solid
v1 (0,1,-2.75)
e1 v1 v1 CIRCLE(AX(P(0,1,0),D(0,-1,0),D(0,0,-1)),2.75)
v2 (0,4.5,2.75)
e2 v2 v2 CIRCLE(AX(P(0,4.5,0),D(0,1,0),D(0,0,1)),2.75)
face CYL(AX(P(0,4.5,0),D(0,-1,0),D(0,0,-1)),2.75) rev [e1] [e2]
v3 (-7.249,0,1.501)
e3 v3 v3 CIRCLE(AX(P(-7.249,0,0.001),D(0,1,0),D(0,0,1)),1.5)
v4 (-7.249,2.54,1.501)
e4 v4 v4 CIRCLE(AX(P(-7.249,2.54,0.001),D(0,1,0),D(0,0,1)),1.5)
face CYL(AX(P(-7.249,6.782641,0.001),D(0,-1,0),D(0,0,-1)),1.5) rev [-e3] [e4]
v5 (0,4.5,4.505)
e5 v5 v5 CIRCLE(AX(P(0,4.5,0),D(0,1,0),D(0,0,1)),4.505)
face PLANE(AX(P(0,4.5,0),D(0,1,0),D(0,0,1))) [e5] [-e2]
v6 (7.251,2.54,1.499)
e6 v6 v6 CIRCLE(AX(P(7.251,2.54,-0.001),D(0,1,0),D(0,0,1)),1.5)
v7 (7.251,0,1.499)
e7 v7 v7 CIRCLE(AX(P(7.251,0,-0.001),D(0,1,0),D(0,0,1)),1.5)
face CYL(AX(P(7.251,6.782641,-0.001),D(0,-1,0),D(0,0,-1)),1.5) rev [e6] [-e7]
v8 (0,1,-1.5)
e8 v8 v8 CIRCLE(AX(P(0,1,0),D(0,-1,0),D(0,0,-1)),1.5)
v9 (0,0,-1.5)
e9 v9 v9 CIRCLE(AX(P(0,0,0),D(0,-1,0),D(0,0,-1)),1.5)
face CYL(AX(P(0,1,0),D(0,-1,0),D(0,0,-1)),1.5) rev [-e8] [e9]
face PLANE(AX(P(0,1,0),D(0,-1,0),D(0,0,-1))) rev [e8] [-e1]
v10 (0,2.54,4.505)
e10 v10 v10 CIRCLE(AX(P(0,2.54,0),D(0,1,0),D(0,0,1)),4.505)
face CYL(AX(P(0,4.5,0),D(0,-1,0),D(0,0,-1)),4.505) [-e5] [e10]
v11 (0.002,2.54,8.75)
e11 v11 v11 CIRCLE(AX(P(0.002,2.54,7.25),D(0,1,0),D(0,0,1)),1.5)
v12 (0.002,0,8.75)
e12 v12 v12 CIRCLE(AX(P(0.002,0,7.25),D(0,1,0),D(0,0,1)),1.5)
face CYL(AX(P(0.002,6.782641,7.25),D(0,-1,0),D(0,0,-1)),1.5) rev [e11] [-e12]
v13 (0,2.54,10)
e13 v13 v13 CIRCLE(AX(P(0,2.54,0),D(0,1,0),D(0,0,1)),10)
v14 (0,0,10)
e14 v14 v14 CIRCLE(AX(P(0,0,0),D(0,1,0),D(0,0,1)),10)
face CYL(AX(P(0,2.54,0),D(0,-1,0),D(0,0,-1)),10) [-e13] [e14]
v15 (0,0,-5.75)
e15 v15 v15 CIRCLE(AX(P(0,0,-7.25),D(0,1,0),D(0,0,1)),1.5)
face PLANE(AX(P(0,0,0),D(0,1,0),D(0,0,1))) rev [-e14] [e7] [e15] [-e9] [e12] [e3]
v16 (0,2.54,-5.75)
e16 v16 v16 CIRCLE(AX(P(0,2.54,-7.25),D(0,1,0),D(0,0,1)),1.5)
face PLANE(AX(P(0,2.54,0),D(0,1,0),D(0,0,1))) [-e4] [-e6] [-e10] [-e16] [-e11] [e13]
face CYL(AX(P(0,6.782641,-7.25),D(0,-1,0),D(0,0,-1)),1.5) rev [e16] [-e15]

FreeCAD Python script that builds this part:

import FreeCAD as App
import Part
import Sketcher

V = App.Vector

doc = App.newDocument("Part")
body = doc.addObject("PartDesign::Body", "Body")

# Sketch on XZ plane
sketch1 = body.newObject("Sketcher::SketchObject", "Sketch")
sketch1.AttachmentSupport = (doc.getObject("XZ_Plane"), [""])
sketch1.MapMode = "FlatFace"
sketch1.addGeometry(Part.Circle(V(0, 0, 0), V(0, 0, 1), 10), False)
sketch1.addGeometry(Part.Circle(V(0, 0, 0), V(0, 0, 1), 4.5), False)
sketch1.addConstraint(Sketcher.Constraint("Coincident", 0, 3, -1, 1))
sketch1.addConstraint(Sketcher.Constraint("Coincident", 1, 3, -1, 1))
sketch1.addConstraint(Sketcher.Constraint("Diameter", 0, 20.0))
sketch1.addConstraint(Sketcher.Constraint("Diameter", 1, 9.01))
pad1 = body.newObject("PartDesign::Pad", "Pad")
pad1.Profile = sketch1
pad1.Length = 2.54
pad1.Reversed = True

# Sketch on XZ plane
sketch2 = body.newObject("Sketcher::SketchObject", "Sketch001")
sketch2.AttachmentSupport = (doc.getObject("XZ_Plane"), [""])
sketch2.MapMode = "FlatFace"
sketch2.addGeometry(Part.Circle(V(0, 0, 0), V(0, 0, 1), 4.5), False)
sketch2.addGeometry(Part.Circle(V(0, 0, 0), V(0, 0, 1), 2.8), False)
sketch2.addConstraint(Sketcher.Constraint("Coincident", 0, 3, -1, 1))
sketch2.addConstraint(Sketcher.Constraint("Coincident", 1, 3, -1, 1))
sketch2.addConstraint(Sketcher.Constraint("Diameter", 1, 5.5))
sketch2.addConstraint(Sketcher.Constraint("Diameter", 0, 9.01))
pad2 = body.newObject("PartDesign::Pad", "Pad001")
pad2.Profile = sketch2
pad2.Length = 4.5
pad2.Reversed = True

# Sketch on XZ plane
sketch3 = body.newObject("Sketcher::SketchObject", "Sketch002")
sketch3.AttachmentSupport = (doc.getObject("XZ_Plane"), [""])
sketch3.MapMode = "FlatFace"
sketch3.addGeometry(Part.Circle(V(-7.2, 0, 0), V(0, 0, 1), 1.5), False)
sketch3.addGeometry(Part.Circle(V(0, -7.2, 0), V(0, 0, 1), 1.5), False)
sketch3.addGeometry(Part.Circle(V(7.3, 0, 0), V(0, 0, 1), 1.5), False)
sketch3.addGeometry(Part.Circle(V(0, 7.2, 0), V(0, 0, 1), 1.5), False)
sketch3.addConstraint(Sketcher.Constraint("Equal", 0, 1))
sketch3.addConstraint(Sketcher.Constraint("Equal", 1, 2))
sketch3.addConstraint(Sketcher.Constraint("Equal", 2, 3))
sketch3.addConstraint(Sketcher.Constraint("PointOnObject", 1, 3, -2))
sketch3.addConstraint(Sketcher.Constraint("Diameter", 0, 3.0))
sketch3.addConstraint(Sketcher.Constraint("DistanceX", 0, 3, 2, 3, 14.5))
sketch3.addConstraint(Sketcher.Constraint("DistanceY", 1, 3, 3, 3, 14.5))
sketch3.addConstraint(Sketcher.Constraint("DistanceY", 1, 3, -1, 1, 7.25))
sketch3.addConstraint(Sketcher.Constraint("DistanceX", 0, 3, -1, 1, 7.249))
sketch3.addConstraint(Sketcher.Constraint("DistanceY", -1, 1, 0, 3, 0.001))
sketch3.addConstraint(Sketcher.Constraint("DistanceY", 2, 3, -1, 1, 0.001))
sketch3.addConstraint(Sketcher.Constraint("DistanceX", -1, 1, 3, 3, 0.002))
pocket1 = body.newObject("PartDesign::Pocket", "Pocket")
pocket1.Profile = sketch3
pocket1.Length = 2.54

# Sketch on XZ plane
sketch4 = body.newObject("Sketcher::SketchObject", "Sketch003")
sketch4.AttachmentSupport = (doc.getObject("XZ_Plane"), [""])
sketch4.MapMode = "FlatFace"
sketch4.addGeometry(Part.Circle(V(0, 0, 0), V(0, 0, 1), 2.8), False)
sketch4.addGeometry(Part.Circle(V(0, 0, 0), V(0, 0, 1), 1.5), False)
sketch4.addConstraint(Sketcher.Constraint("Coincident", 0, 3, -1, 1))
sketch4.addConstraint(Sketcher.Constraint("Coincident", 1, 3, -1, 1))
sketch4.addConstraint(Sketcher.Constraint("Diameter", 1, 3.0))
sketch4.addConstraint(Sketcher.Constraint("Diameter", 0, 5.5))
pad3 = body.newObject("PartDesign::Pad", "Pad002")
pad3.Profile = sketch4
pad3.Length = 1
pad3.Reversed = True

doc.recompute()
